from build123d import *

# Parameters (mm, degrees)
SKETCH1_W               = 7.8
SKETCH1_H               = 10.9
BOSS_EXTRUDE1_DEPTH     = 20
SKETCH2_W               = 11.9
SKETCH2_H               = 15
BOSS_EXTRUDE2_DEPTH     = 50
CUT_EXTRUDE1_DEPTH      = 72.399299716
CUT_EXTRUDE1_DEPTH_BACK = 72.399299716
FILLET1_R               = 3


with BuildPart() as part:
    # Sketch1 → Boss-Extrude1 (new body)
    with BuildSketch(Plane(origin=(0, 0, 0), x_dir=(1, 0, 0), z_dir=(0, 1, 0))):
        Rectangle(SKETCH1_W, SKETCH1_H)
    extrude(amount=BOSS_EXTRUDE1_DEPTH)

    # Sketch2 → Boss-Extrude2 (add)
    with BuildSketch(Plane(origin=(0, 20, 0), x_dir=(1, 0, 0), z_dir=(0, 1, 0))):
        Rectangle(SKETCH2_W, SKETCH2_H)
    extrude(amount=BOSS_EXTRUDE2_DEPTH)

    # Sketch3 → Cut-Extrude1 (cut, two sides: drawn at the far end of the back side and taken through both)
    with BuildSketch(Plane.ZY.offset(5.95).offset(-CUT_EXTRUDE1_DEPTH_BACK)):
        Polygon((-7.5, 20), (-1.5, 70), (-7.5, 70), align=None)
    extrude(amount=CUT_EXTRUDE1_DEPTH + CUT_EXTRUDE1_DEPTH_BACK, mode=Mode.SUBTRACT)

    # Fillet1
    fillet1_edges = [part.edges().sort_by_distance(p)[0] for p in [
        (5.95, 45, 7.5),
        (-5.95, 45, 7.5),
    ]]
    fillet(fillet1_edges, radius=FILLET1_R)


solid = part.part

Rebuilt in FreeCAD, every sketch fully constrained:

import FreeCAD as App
import Part
import Sketcher

V = App.Vector


def edges_at(feature, points):
    """Names of the edges that pass closest to the given points."""
    edges = feature.Shape.Edges
    near = lambda p: min(range(len(edges)), key=lambda i: edges[i].distToShape(Part.Vertex(*p))[0])
    return sorted({f"Edge{near(p) + 1}" for p in points})

doc = App.newDocument("Part")
body = doc.addObject("PartDesign::Body", "Body")

sketch1 = body.newObject("Sketcher::SketchObject", "Sketch")
sketch1.AttachmentSupport = (doc.getObject("XZ_Plane"), [""])
sketch1.MapMode = "FlatFace"
sketch1.addGeometry(Part.LineSegment(V(-4, -5, 0), V(-4, 5, 0)), False)
sketch1.addGeometry(Part.LineSegment(V(-4, 5, 0), V(4, 5, 0)), False)
sketch1.addGeometry(Part.LineSegment(V(4, 5, 0), V(4, -5, 0)), False)
sketch1.addGeometry(Part.LineSegment(V(4, -5, 0), V(-4, -5, 0)), False)
sketch1.addConstraint(Sketcher.Constraint("Coincident", 0, 2, 1, 1))
sketch1.addConstraint(Sketcher.Constraint("Coincident", 1, 2, 2, 1))
sketch1.addConstraint(Sketcher.Constraint("Coincident", 2, 2, 3, 1))
sketch1.addConstraint(Sketcher.Constraint("Coincident", 3, 2, 0, 1))
sketch1.addConstraint(Sketcher.Constraint("Vertical", 0))
sketch1.addConstraint(Sketcher.Constraint("Horizontal", 1))
sketch1.addConstraint(Sketcher.Constraint("Vertical", 2))
sketch1.addConstraint(Sketcher.Constraint("Horizontal", 3))
sketch1.addConstraint(Sketcher.Constraint("Symmetric", 0, 2, 2, 2, -1, 1))
sketch1.addConstraint(Sketcher.Constraint("DistanceX", 1, 1, 1, 2, 7.8))
sketch1.addConstraint(Sketcher.Constraint("DistanceY", 0, 1, 0, 2, 10.9))
pad1 = body.newObject("PartDesign::Pad", "Pad")
pad1.Profile = sketch1
pad1.Length = 20
pad1.Reversed = True

sketch2 = body.newObject("Sketcher::SketchObject", "Sketch001")
sketch2.AttachmentSupport = (doc.getObject("XZ_Plane"), [""])
sketch2.MapMode = "FlatFace"
sketch2.AttachmentOffset = App.Placement(V(0, 0, -20), App.Rotation())
sketch2.addGeometry(Part.LineSegment(V(-6, -8, 0), V(-6, 8, 0)), False)
sketch2.addGeometry(Part.LineSegment(V(-6, 8, 0), V(6, 8, 0)), False)
sketch2.addGeometry(Part.LineSegment(V(6, 8, 0), V(6, -8, 0)), False)
sketch2.addGeometry(Part.LineSegment(V(6, -8, 0), V(-6, -8, 0)), False)
sketch2.addConstraint(Sketcher.Constraint("Coincident", 0, 2, 1, 1))
sketch2.addConstraint(Sketcher.Constraint("Coincident", 1, 2, 2, 1))
sketch2.addConstraint(Sketcher.Constraint("Coincident", 2, 2, 3, 1))
sketch2.addConstraint(Sketcher.Constraint("Coincident", 3, 2, 0, 1))
sketch2.addConstraint(Sketcher.Constraint("Vertical", 0))
sketch2.addConstraint(Sketcher.Constraint("Horizontal", 1))
sketch2.addConstraint(Sketcher.Constraint("Vertical", 2))
sketch2.addConstraint(Sketcher.Constraint("Horizontal", 3))
sketch2.addConstraint(Sketcher.Constraint("Symmetric", 0, 2, 2, 2, -1, 1))
sketch2.addConstraint(Sketcher.Constraint("DistanceY", 0, 1, 0, 2, 15.0))
sketch2.addConstraint(Sketcher.Constraint("DistanceX", 1, 1, 1, 2, 11.9))
pad2 = body.newObject("PartDesign::Pad", "Pad001")
pad2.Profile = sketch2
pad2.Length = 50
pad2.Reversed = True

sketch3 = body.newObject("Sketcher::SketchObject", "Sketch002")
sketch3.AttachmentSupport = (doc.getObject("YZ_Plane"), [""])
sketch3.MapMode = "FlatFace"
sketch3.AttachmentOffset = App.Placement(V(0, 0, -5.95), App.Rotation())
sketch3.addGeometry(Part.LineSegment(V(20, -8, 0), V(70, -2, 0)), False)
sketch3.addGeometry(Part.LineSegment(V(70, -2, 0), V(70, -8, 0)), False)
sketch3.addGeometry(Part.LineSegment(V(70, -8, 0), V(20, -8, 0)), False)
sketch3.addConstraint(Sketcher.Constraint("Coincident", 0, 2, 1, 1))
sketch3.addConstraint(Sketcher.Constraint("Coincident", 1, 2, 2, 1))
sketch3.addConstraint(Sketcher.Constraint("Coincident", 2, 2, 0, 1))
sketch3.addConstraint(Sketcher.Constraint("Vertical", 1))
sketch3.addConstraint(Sketcher.Constraint("Horizontal", 2))
sketch3.addConstraint(Sketcher.Constraint("DistanceX", 2, 2, 2, 1, 50.0))
sketch3.addConstraint(Sketcher.Constraint("DistanceY", 1, 2, 1, 1, 6.0))
sketch3.addConstraint(Sketcher.Constraint("DistanceX", -1, 1, 0, 2, 70.0))
sketch3.addConstraint(Sketcher.Constraint("DistanceY", 0, 2, -1, 1, 1.5))
pocket1 = body.newObject("PartDesign::Pocket", "Pocket")
pocket1.Profile = sketch3
pocket1.Type = "ThroughAll"
pocket1.Midplane = True
doc.recompute()

fillet = body.newObject("PartDesign::Fillet", "Fillet")
fillet.Base = (pocket1, edges_at(pocket1, [(5.95, 45, 7.5), (-5.95, 45, 7.5)]))
fillet.Radius = 3

doc.recompute()
